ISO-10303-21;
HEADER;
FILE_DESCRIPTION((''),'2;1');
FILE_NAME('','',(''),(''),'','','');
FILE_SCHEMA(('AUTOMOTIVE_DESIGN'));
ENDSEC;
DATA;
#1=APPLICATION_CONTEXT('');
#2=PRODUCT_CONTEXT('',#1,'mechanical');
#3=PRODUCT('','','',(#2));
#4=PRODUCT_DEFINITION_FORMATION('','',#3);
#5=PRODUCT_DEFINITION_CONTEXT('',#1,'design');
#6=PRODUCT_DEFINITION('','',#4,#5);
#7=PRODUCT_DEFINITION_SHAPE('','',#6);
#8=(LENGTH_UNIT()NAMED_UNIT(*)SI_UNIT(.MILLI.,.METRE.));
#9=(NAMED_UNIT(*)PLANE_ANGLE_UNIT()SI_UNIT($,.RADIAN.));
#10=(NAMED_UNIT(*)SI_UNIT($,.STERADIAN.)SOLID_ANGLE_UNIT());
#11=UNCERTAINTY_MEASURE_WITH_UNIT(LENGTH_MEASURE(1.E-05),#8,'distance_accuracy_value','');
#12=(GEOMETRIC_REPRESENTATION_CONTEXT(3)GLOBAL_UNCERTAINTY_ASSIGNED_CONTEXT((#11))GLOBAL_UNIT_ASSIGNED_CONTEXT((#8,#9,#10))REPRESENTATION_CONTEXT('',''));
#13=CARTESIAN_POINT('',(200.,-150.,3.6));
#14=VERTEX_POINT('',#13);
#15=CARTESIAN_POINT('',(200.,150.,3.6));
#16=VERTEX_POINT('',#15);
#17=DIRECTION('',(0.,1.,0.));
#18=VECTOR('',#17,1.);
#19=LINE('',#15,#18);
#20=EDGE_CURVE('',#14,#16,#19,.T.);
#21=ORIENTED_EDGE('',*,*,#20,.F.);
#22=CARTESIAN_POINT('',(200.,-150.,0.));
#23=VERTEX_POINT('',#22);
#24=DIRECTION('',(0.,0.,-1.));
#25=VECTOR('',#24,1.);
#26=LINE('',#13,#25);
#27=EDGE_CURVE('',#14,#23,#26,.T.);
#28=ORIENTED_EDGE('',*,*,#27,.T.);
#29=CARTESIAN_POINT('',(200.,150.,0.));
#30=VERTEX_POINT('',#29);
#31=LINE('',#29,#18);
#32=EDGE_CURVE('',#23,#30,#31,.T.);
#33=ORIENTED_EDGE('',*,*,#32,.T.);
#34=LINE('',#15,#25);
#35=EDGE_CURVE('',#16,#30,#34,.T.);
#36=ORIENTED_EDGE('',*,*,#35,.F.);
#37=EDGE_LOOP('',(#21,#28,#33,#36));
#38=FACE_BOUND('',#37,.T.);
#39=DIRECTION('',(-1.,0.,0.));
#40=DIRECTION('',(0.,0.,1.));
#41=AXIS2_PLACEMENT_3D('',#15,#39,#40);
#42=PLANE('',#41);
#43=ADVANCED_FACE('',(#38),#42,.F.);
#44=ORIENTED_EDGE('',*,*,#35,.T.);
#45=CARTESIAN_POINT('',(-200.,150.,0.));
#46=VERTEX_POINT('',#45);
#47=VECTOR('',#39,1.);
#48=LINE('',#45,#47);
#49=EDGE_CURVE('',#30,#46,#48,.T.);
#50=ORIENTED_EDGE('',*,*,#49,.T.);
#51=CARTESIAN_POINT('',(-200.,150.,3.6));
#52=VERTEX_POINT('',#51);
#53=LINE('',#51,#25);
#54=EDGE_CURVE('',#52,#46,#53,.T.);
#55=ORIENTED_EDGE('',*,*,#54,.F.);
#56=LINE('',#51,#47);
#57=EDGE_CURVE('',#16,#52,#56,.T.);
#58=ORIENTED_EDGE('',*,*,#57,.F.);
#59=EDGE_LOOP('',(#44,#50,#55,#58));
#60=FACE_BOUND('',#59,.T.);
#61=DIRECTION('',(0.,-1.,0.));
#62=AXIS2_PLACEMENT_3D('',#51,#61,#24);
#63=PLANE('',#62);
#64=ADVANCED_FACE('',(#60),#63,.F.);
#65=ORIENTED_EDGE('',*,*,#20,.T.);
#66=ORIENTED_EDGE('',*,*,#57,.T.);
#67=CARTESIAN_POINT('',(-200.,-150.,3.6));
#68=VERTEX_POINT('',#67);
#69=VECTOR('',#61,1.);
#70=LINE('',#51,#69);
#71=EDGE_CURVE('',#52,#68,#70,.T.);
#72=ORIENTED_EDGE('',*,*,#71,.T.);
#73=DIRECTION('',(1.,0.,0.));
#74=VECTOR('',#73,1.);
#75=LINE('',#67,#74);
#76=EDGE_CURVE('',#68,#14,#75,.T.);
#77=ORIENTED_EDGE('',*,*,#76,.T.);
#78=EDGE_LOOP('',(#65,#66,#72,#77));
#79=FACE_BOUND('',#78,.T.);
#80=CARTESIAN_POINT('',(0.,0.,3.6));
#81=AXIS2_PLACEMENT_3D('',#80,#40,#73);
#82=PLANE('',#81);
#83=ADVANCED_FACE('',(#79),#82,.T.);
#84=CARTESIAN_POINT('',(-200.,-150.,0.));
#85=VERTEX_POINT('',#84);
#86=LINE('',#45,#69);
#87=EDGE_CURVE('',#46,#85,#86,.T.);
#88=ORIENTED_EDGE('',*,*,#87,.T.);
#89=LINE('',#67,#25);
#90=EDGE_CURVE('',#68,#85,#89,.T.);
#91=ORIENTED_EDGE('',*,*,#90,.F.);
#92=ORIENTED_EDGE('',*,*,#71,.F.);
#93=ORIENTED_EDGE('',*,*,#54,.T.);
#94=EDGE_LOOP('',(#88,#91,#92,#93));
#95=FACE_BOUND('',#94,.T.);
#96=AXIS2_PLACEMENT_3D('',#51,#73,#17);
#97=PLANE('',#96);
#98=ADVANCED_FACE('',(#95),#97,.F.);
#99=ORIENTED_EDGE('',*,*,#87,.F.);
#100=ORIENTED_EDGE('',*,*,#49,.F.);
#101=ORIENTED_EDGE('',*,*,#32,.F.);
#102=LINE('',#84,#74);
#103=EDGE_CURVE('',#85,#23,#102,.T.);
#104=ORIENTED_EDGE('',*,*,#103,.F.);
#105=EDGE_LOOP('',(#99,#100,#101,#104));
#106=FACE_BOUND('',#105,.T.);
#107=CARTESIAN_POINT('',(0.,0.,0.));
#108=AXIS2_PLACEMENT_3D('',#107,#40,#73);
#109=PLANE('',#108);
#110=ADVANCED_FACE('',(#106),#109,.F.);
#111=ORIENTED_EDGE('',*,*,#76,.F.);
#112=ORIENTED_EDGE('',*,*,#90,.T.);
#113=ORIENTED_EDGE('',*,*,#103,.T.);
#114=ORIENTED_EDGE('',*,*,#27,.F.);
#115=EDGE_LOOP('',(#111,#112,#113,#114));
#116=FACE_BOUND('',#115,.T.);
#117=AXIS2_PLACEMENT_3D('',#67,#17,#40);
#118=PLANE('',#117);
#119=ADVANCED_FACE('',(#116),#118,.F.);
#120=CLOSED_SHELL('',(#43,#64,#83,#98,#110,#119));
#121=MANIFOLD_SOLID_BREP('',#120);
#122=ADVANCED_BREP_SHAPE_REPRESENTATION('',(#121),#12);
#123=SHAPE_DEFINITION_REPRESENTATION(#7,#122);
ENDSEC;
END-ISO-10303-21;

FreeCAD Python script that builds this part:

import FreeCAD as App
import Part
import Sketcher
Q = App.Units.Quantity

doc = App.newDocument("Part")
body = doc.addObject("PartDesign::Body", "Body")

sketch1 = doc.addObject("Sketcher::SketchObject", "Sketch")
body.addObject(sketch1)
sketch1.AttachmentSupport = (doc.XY_Plane, [""])
sketch1.MapMode = "FlatFace"
sketch1.addGeometry(Part.LineSegment(App.Vector(-200, 150, 0), App.Vector(-200, -150, 0)), False)
sketch1.addGeometry(Part.LineSegment(App.Vector(-200, -150, 0), App.Vector(200, -150, 0)), False)
sketch1.addGeometry(Part.LineSegment(App.Vector(200, -150, 0), App.Vector(200, 150, 0)), False)
sketch1.addGeometry(Part.LineSegment(App.Vector(200, 150, 0), App.Vector(-200, 150, 0)), False)
sketch1.addConstraint(Sketcher.Constraint("Coincident", 0, 2, 1, 1))
sketch1.addConstraint(Sketcher.Constraint("Coincident", 1, 2, 2, 1))
sketch1.addConstraint(Sketcher.Constraint("Coincident", 2, 2, 3, 1))
sketch1.addConstraint(Sketcher.Constraint("Coincident", 3, 2, 0, 1))
sketch1.addConstraint(Sketcher.Constraint("Vertical", 0))
sketch1.addConstraint(Sketcher.Constraint("Horizontal", 1))
sketch1.addConstraint(Sketcher.Constraint("Vertical", 2))
sketch1.addConstraint(Sketcher.Constraint("Horizontal", 3))
sketch1.addConstraint(Sketcher.Constraint("Symmetric", 0, 2, 2, 2, -1, 1))
sketch1.addConstraint(Sketcher.Constraint("DistanceX", 1, 1, 1, 2, Q("400 mm")))
sketch1.addConstraint(Sketcher.Constraint("DistanceY", 0, 2, 0, 1, Q("300 mm")))
pad1 = doc.addObject("PartDesign::Pad", "Pad")
body.addObject(pad1)
pad1.Profile = sketch1
pad1.Length = 3.6

doc.recompute()
